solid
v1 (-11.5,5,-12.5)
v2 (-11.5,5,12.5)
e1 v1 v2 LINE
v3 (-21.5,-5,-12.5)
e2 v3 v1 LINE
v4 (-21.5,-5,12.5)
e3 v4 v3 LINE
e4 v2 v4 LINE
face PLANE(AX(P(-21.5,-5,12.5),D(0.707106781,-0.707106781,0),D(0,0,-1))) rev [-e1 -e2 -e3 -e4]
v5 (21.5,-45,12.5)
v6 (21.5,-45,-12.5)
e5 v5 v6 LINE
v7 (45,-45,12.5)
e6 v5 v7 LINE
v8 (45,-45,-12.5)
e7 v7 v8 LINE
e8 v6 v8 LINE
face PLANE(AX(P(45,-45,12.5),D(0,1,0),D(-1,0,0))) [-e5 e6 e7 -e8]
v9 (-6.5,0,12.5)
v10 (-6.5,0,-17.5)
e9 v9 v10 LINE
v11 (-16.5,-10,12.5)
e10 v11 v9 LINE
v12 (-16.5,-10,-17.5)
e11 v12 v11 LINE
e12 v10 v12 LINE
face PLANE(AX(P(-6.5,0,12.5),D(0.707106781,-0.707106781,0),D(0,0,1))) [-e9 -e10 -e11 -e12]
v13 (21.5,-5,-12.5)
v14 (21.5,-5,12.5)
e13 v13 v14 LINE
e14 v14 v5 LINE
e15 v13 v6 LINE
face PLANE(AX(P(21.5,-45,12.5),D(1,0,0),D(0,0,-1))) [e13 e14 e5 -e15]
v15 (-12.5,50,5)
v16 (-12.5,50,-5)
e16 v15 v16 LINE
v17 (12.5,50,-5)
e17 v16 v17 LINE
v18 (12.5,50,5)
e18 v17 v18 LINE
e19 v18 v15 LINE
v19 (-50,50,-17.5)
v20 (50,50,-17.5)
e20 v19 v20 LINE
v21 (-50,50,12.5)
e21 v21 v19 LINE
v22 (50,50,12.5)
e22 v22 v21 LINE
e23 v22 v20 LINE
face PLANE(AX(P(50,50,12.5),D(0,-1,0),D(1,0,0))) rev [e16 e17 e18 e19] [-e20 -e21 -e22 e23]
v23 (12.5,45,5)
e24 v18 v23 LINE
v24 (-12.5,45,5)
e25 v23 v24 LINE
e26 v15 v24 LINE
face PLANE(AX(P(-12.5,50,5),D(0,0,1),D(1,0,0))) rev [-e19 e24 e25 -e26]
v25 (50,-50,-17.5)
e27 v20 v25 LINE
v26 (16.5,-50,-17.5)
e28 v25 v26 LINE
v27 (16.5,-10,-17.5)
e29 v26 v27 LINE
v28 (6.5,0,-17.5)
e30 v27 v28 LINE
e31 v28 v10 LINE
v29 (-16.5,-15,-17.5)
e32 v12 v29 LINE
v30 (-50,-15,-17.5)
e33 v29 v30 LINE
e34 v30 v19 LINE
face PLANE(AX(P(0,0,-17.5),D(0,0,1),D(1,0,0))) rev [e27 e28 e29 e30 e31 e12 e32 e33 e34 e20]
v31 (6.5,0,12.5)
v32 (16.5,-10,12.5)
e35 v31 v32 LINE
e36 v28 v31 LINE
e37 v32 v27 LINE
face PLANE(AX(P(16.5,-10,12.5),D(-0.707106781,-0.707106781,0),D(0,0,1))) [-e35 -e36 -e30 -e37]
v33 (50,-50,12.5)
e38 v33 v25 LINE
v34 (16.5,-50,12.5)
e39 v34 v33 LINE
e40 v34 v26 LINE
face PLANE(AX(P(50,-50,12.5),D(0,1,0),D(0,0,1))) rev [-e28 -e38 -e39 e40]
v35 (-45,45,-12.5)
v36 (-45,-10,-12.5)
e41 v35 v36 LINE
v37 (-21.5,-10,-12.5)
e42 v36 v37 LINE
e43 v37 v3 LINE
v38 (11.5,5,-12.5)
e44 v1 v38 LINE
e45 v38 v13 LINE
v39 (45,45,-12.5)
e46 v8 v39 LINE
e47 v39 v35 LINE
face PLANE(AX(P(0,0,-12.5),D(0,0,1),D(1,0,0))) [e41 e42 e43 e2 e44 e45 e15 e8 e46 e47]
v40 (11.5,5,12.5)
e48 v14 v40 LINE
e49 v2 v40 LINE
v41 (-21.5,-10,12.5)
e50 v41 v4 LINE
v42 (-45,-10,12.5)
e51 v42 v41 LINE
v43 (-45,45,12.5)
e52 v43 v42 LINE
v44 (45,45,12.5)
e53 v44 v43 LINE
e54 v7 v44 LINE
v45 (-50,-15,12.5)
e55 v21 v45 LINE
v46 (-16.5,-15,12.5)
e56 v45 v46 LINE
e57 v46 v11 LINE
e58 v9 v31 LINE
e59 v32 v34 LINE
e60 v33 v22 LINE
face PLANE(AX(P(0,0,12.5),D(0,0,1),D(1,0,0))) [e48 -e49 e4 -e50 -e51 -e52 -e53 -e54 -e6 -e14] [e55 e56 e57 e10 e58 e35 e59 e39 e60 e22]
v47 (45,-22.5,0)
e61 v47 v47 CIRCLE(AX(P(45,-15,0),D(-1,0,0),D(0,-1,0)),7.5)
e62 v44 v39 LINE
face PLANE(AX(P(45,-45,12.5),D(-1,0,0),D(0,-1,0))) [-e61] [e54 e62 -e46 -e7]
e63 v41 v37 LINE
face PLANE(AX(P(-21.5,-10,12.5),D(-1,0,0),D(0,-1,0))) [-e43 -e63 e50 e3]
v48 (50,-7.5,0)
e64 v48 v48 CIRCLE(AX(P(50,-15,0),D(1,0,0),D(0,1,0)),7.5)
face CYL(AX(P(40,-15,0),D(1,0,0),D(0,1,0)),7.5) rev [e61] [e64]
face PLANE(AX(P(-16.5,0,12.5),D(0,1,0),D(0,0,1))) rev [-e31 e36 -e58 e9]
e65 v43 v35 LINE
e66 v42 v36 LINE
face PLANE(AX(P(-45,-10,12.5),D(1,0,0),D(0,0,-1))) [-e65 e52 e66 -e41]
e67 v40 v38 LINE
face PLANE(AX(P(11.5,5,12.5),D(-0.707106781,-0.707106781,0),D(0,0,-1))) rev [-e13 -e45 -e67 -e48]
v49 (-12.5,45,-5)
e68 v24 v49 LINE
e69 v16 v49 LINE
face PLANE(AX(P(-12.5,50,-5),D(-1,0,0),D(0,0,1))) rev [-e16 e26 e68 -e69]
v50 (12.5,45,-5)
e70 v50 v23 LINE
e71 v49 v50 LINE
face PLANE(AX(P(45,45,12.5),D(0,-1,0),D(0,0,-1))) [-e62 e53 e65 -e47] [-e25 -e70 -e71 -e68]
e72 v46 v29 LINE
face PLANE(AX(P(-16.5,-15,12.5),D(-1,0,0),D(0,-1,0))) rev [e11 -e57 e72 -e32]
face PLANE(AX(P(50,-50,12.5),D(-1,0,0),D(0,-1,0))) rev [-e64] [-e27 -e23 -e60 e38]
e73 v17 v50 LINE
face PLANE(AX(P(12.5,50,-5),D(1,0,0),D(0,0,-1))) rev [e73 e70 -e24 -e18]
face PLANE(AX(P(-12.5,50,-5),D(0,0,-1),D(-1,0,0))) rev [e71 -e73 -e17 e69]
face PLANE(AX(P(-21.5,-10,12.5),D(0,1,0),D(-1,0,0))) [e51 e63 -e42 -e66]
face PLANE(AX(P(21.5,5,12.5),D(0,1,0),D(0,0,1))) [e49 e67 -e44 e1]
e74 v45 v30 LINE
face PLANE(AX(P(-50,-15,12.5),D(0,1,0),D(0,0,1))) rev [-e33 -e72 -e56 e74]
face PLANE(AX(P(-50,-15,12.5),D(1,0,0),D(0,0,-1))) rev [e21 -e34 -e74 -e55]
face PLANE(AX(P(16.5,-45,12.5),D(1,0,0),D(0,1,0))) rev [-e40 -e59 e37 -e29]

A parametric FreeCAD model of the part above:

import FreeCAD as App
import Part
import Sketcher
from FreeCAD import Vector


def edges_at(feature, points):
    """Names of the edges that pass closest to the given points."""
    edges = feature.Shape.Edges
    near = lambda p: min(range(len(edges)), key=lambda i: edges[i].distToShape(Part.Vertex(*p))[0])
    return sorted({f"Edge{near(p) + 1}" for p in points})

doc = App.newDocument("Part")
body = doc.addObject("PartDesign::Body", "Body")

# Sketch on XY plane
sketch1 = body.newObject("Sketcher::SketchObject", "Sketch")
sketch1.AttachmentSupport = (doc.getObject("XY_Plane"), [""])
sketch1.MapMode = "FlatFace"
sketch1.addGeometry([
    Part.LineSegment(Vector(16, -50, 0), Vector(50, -50, 0)),  # 0
    Part.LineSegment(Vector(50, -50, 0), Vector(50, 50, 0)),  # 1
    Part.LineSegment(Vector(50, 50, 0), Vector(-50, 50, 0)),  # 2
    Part.LineSegment(Vector(-50, 50, 0), Vector(-50, -15, 0)),  # 3
    Part.LineSegment(Vector(-50, -15, 0), Vector(-16, -15, 0)),  # 4
    Part.LineSegment(Vector(-16, -15, 0), Vector(-16, 0, 0)),  # 5
    Part.LineSegment(Vector(-16, 0, 0), Vector(16, 0, 0)),  # 6
    Part.LineSegment(Vector(16, 0, 0), Vector(16, -50, 0)),  # 7
    Part.LineSegment(Vector(45, -45, 0), Vector(22, -45, 0)),  # 8
    Part.LineSegment(Vector(22, -45, 0), Vector(22, 5, 0)),  # 9
    Part.LineSegment(Vector(22, 5, 0), Vector(-22, 5, 0)),  # 10
    Part.LineSegment(Vector(-22, 5, 0), Vector(-22, -10, 0)),  # 11
    Part.LineSegment(Vector(-22, -10, 0), Vector(-45, -10, 0)),  # 12
    Part.LineSegment(Vector(-45, -10, 0), Vector(-45, 45, 0)),  # 13
    Part.LineSegment(Vector(-45, 45, 0), Vector(45, 45, 0)),  # 14
    Part.LineSegment(Vector(45, 45, 0), Vector(45, -45, 0)),  # 15
], False)
sketch1.addConstraint([
    Sketcher.Constraint("Coincident", 0, 2, 1, 1),
    Sketcher.Constraint("Coincident", 1, 2, 2, 1),
    Sketcher.Constraint("Coincident", 2, 2, 3, 1),
    Sketcher.Constraint("Coincident", 3, 2, 4, 1),
    Sketcher.Constraint("Coincident", 4, 2, 5, 1),
    Sketcher.Constraint("Coincident", 5, 2, 6, 1),
    Sketcher.Constraint("Coincident", 6, 2, 7, 1),
    Sketcher.Constraint("Coincident", 7, 2, 0, 1),
    Sketcher.Constraint("Coincident", 8, 2, 9, 1),
    Sketcher.Constraint("Coincident", 9, 2, 10, 1),
    Sketcher.Constraint("Coincident", 10, 2, 11, 1),
    Sketcher.Constraint("Coincident", 11, 2, 12, 1),
    Sketcher.Constraint("Coincident", 12, 2, 13, 1),
    Sketcher.Constraint("Coincident", 13, 2, 14, 1),
    Sketcher.Constraint("Coincident", 14, 2, 15, 1),
    Sketcher.Constraint("Coincident", 15, 2, 8, 1),
    Sketcher.Constraint("Horizontal", 0),
    Sketcher.Constraint("Vertical", 1),
    Sketcher.Constraint("Horizontal", 2),
    Sketcher.Constraint("Vertical", 3),
    Sketcher.Constraint("Horizontal", 4),
    Sketcher.Constraint("Vertical", 5),
    Sketcher.Constraint("Horizontal", 6),
    Sketcher.Constraint("Vertical", 7),
    Sketcher.Constraint("Horizontal", 8),
    Sketcher.Constraint("Vertical", 9),
    Sketcher.Constraint("Horizontal", 10),
    Sketcher.Constraint("Vertical", 11),
    Sketcher.Constraint("Horizontal", 12),
    Sketcher.Constraint("Vertical", 13),
    Sketcher.Constraint("Horizontal", 14),
    Sketcher.Constraint("Vertical", 15),
    Sketcher.Constraint("Symmetric", 0, 2, 2, 2, -1, 1),
    Sketcher.Constraint("Symmetric", 5, 2, 6, 2, -1, 1),
    Sketcher.Constraint("Symmetric", 13, 2, 15, 2, -1, 1),
    Sketcher.Constraint("Equal", 8, 12),
    Sketcher.Constraint("Equal", 2, 1),
    Sketcher.Constraint("Equal", 7, 9),
    Sketcher.Constraint("Equal", 5, 11),
    Sketcher.Constraint("Equal", 14, 15),
    Sketcher.Constraint("DistanceX", 2, 2, 2, 1, 100.0),
    Sketcher.Constraint("DistanceX", 6, 1, 6, 2, 33.0),
    Sketcher.Constraint("DistanceX", 10, 2, 10, 1, 43.0),
    Sketcher.Constraint("DistanceX", 14, 1, 14, 2, 90.0),
    Sketcher.Constraint("DistanceY", 3, 2, 3, 1, 65.0),
])
pad1 = body.newObject("PartDesign::Pad", "Pad")
pad1.Profile = sketch1
pad1.Length = 25
pad1.Midplane = True

# Sketch on XY plane
sketch2 = body.newObject("Sketcher::SketchObject", "Sketch001")
sketch2.AttachmentSupport = (doc.getObject("XY_Plane"), [""])
sketch2.MapMode = "FlatFace"
sketch2.AttachmentOffset = App.Placement(Vector(0, 0, -12.5), App.Rotation())
sketch2.addGeometry([
    Part.LineSegment(Vector(16, 0, 0), Vector(-16, 0, 0)),  # 0
    Part.LineSegment(Vector(-16, 0, 0), Vector(-16, -15, 0)),  # 1
    Part.LineSegment(Vector(-16, -15, 0), Vector(-50, -15, 0)),  # 2
    Part.LineSegment(Vector(-50, -15, 0), Vector(-50, 50, 0)),  # 3
    Part.LineSegment(Vector(-50, 50, 0), Vector(50, 50, 0)),  # 4
    Part.LineSegment(Vector(50, 50, 0), Vector(50, -50, 0)),  # 5
    Part.LineSegment(Vector(50, -50, 0), Vector(16, -50, 0)),  # 6
    Part.LineSegment(Vector(16, -50, 0), Vector(16, 0, 0)),  # 7
], False)
sketch2.addConstraint([
    Sketcher.Constraint("Coincident", 0, 2, 1, 1),
    Sketcher.Constraint("Coincident", 1, 2, 2, 1),
    Sketcher.Constraint("Coincident", 2, 2, 3, 1),
    Sketcher.Constraint("Coincident", 3, 2, 4, 1),
    Sketcher.Constraint("Coincident", 4, 2, 5, 1),
    Sketcher.Constraint("Coincident", 5, 2, 6, 1),
    Sketcher.Constraint("Coincident", 6, 2, 7, 1),
    Sketcher.Constraint("Coincident", 7, 2, 0, 1),
    Sketcher.Constraint("Horizontal", 0),
    Sketcher.Constraint("Vertical", 1),
    Sketcher.Constraint("Horizontal", 2),
    Sketcher.Constraint("Vertical", 3),
    Sketcher.Constraint("Horizontal", 4),
    Sketcher.Constraint("Vertical", 5),
    Sketcher.Constraint("Horizontal", 6),
    Sketcher.Constraint("Vertical", 7),
    Sketcher.Constraint("Symmetric", 3, 2, 5, 2, -1, 1),
    Sketcher.Constraint("Symmetric", 0, 2, 7, 2, -1, 1),
    Sketcher.Constraint("Equal", 4, 5),
    Sketcher.Constraint("DistanceX", 0, 2, 0, 1, 33.0),
    Sketcher.Constraint("DistanceX", 4, 1, 4, 2, 100.0),
    Sketcher.Constraint("DistanceY", 1, 2, 1, 1, 15.0),
])
pad2 = body.newObject("PartDesign::Pad", "Pad001")
pad2.Profile = sketch2
pad2.Length = 5
pad2.Reversed = True

# Sketch on XZ plane
sketch3 = body.newObject("Sketcher::SketchObject", "Sketch002")
sketch3.AttachmentSupport = (doc.getObject("XZ_Plane"), [""])
sketch3.MapMode = "FlatFace"
sketch3.AttachmentOffset = App.Placement(Vector(0, 0, -45), App.Rotation())
sketch3.addGeometry([
    Part.LineSegment(Vector(-12, 5, 0), Vector(-12, -5, 0)),
    Part.LineSegment(Vector(-12, -5, 0), Vector(12, -5, 0)),
    Part.LineSegment(Vector(12, -5, 0), Vector(12, 5, 0)),
    Part.LineSegment(Vector(12, 5, 0), Vector(-12, 5, 0)),
], False)
sketch3.addConstraint([
    Sketcher.Constraint("Coincident", 0, 2, 1, 1),
    Sketcher.Constraint("Coincident", 1, 2, 2, 1),
    Sketcher.Constraint("Coincident", 2, 2, 3, 1),
    Sketcher.Constraint("Coincident", 3, 2, 0, 1),
    Sketcher.Constraint("Vertical", 0),
    Sketcher.Constraint("Horizontal", 1),
    Sketcher.Constraint("Vertical", 2),
    Sketcher.Constraint("Horizontal", 3),
    Sketcher.Constraint("Symmetric", 0, 2, 2, 2, -1, 1),
    Sketcher.Constraint("DistanceX", 1, 1, 1, 2, 25.0),
    Sketcher.Constraint("DistanceY", 0, 2, 0, 1, 10.0),
])
pocket1 = body.newObject("PartDesign::Pocket", "Pocket")
pocket1.Profile = sketch3
pocket1.Type = "ThroughAll"

# Sketch on YZ plane
sketch4 = body.newObject("Sketcher::SketchObject", "Sketch003")
sketch4.AttachmentSupport = (doc.getObject("YZ_Plane"), [""])
sketch4.MapMode = "FlatFace"
sketch4.AttachmentOffset = App.Placement(Vector(0, 0, 50), App.Rotation())
sketch4.addGeometry(Part.Circle(Vector(-15, 0, 0), Vector(0, 0, 1), 8), False)
sketch4.addConstraint([
    Sketcher.Constraint("PointOnObject", 0, 3, -1),
    Sketcher.Constraint("Diameter", 0, 15.0),
    Sketcher.Constraint("DistanceX", 0, 3, -1, 1, 15.0),
])
pocket2 = body.newObject("PartDesign::Pocket", "Pocket001")
pocket2.Profile = sketch4
pocket2.Length = 10
doc.recompute()

chamfer = body.newObject("PartDesign::Chamfer", "Chamfer")
chamfer.Base = (pocket2, edges_at(pocket2, [(16.5, 0, -2.5), (-16.5, 0, -2.5)]))
chamfer.Size = 10
doc.recompute()

chamfer2 = body.newObject("PartDesign::Chamfer", "Chamfer001")
chamfer2.Base = (chamfer, edges_at(chamfer, [(-21.5, 5, 0), (21.5, 5, 0)]))
chamfer2.Size = 10

doc.recompute()
